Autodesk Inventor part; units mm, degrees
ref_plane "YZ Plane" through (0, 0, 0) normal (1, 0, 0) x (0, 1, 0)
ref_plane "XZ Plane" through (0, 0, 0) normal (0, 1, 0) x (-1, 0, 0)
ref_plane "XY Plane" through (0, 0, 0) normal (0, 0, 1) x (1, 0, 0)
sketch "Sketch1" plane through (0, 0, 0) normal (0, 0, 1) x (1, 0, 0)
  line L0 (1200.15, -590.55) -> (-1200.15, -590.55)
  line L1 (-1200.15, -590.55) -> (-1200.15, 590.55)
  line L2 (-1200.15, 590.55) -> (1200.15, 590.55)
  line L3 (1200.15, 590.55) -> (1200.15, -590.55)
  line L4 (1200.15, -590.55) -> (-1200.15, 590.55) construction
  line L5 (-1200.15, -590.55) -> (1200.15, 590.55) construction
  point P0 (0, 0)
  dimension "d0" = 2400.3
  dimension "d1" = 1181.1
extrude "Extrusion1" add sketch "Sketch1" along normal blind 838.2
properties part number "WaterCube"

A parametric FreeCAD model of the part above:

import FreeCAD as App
import Part
import Sketcher

V = App.Vector
Q = App.Units.Quantity

doc = App.newDocument("Part")
body = doc.addObject("PartDesign::Body", "Body")

# Sketch on XY plane
sketch1 = doc.addObject("Sketcher::SketchObject", "Sketch")
body.addObject(sketch1)
sketch1.AttachmentSupport = (doc.XY_Plane, [""])
sketch1.MapMode = "FlatFace"
sketch1.addGeometry([
    Part.LineSegment(V(-1200.15, -590.55, 0), V(1200.15, -590.55, 0)),
    Part.LineSegment(V(1200.15, -590.55, 0), V(1200.15, 590.55, 0)),
    Part.LineSegment(V(1200.15, 590.55, 0), V(-1200.15, 590.55, 0)),
    Part.LineSegment(V(-1200.15, 590.55, 0), V(-1200.15, -590.55, 0)),
], False)
sketch1.addConstraint([
    Sketcher.Constraint("Coincident", 0, 2, 1, 1),
    Sketcher.Constraint("Coincident", 1, 2, 2, 1),
    Sketcher.Constraint("Coincident", 2, 2, 3, 1),
    Sketcher.Constraint("Coincident", 3, 2, 0, 1),
    Sketcher.Constraint("Horizontal", 0),
    Sketcher.Constraint("Vertical", 1),
    Sketcher.Constraint("Horizontal", 2),
    Sketcher.Constraint("Vertical", 3),
    Sketcher.Constraint("Symmetric", 0, 2, 2, 2, -1, 1),
    Sketcher.Constraint("DistanceX", 0, 1, 0, 2, Q("94.5 in")),
    Sketcher.Constraint("DistanceY", 1, 1, 1, 2, Q("46.5 in")),
])
pad1 = doc.addObject("PartDesign::Pad", "Pad")
body.addObject(pad1)
pad1.Profile = sketch1
pad1.Length = Q("33 in")

doc.recompute()
